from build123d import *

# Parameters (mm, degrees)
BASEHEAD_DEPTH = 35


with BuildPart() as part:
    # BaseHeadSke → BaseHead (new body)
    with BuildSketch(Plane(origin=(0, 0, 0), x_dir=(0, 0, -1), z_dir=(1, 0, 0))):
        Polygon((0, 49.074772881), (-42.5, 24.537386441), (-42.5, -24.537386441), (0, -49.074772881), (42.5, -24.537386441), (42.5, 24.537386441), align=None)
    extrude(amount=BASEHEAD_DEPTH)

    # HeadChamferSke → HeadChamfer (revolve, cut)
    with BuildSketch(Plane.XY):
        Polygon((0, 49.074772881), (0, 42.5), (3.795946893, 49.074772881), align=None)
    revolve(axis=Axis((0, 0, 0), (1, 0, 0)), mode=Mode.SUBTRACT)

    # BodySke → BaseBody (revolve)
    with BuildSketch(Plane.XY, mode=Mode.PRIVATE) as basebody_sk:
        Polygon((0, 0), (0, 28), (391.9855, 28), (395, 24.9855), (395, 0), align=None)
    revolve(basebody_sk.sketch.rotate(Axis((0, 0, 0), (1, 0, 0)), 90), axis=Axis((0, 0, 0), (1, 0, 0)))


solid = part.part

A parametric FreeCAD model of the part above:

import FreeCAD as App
import Part
import Sketcher
Q = App.Units.Quantity

doc = App.newDocument("Part")
body = doc.addObject("PartDesign::Body", "Body")

# Sketch on YZ plane
sketch1 = body.newObject("Sketcher::SketchObject", "Sketch")
sketch1.AttachmentSupport = (doc.getObject("YZ_Plane"), [""])
sketch1.MapMode = "FlatFace"
sketch1.addGeometry([
    Part.LineSegment(App.Vector(49, 0, 0), App.Vector(25, 42, 0)),  # 0
    Part.LineSegment(App.Vector(25, 42, 0), App.Vector(-25, 42, 0)),  # 1
    Part.LineSegment(App.Vector(-25, 42, 0), App.Vector(-49, 0, 0)),  # 2
    Part.LineSegment(App.Vector(-49, 0, 0), App.Vector(-25, -42, 0)),  # 3
    Part.LineSegment(App.Vector(-25, -42, 0), App.Vector(25, -42, 0)),  # 4
    Part.LineSegment(App.Vector(25, -42, 0), App.Vector(49, 0, 0)),  # 5
], False)
sketch1.addConstraint([
    Sketcher.Constraint("Coincident", 0, 2, 1, 1),
    Sketcher.Constraint("Coincident", 1, 2, 2, 1),
    Sketcher.Constraint("Coincident", 2, 2, 3, 1),
    Sketcher.Constraint("Coincident", 3, 2, 4, 1),
    Sketcher.Constraint("Coincident", 4, 2, 5, 1),
    Sketcher.Constraint("Coincident", 5, 2, 0, 1),
    Sketcher.Constraint("Horizontal", 1),
    Sketcher.Constraint("Horizontal", 4),
    Sketcher.Constraint("Symmetric", 0, 2, 3, 2, -1, 1),
    Sketcher.Constraint("Symmetric", 2, 2, 5, 2, -1, 1),
    Sketcher.Constraint("PointOnObject", 2, 2, -1),
    Sketcher.Constraint("Parallel", 2, 5),
    Sketcher.Constraint("Vertical", 1, 2, 3, 2),
    Sketcher.Constraint("Angle", 0, Q("120 deg")),
    Sketcher.Constraint("DistanceY", 3, 2, 1, 2, Q("85 mm")),
    Sketcher.Constraint("DistanceX", 1, 2, 1, 1, Q("49.074773 mm")),
])
pad1 = body.newObject("PartDesign::Pad", "Pad")
pad1.Profile = sketch1
pad1.Length = 35

# Sketch on XY plane
sketch2 = body.newObject("Sketcher::SketchObject", "Sketch001")
sketch2.AttachmentSupport = (doc.getObject("XY_Plane"), [""])
sketch2.MapMode = "FlatFace"
sketch2.addGeometry([
    Part.LineSegment(App.Vector(0, 49.1, 0), App.Vector(0, 42.5, 0)),
    Part.LineSegment(App.Vector(0, 42.5, 0), App.Vector(3.8, 49.1, 0)),
    Part.LineSegment(App.Vector(3.8, 49.1, 0), App.Vector(0, 49.1, 0)),
], False)
sketch2.addConstraint([
    Sketcher.Constraint("Coincident", 0, 2, 1, 1),
    Sketcher.Constraint("Coincident", 1, 2, 2, 1),
    Sketcher.Constraint("Coincident", 2, 2, 0, 1),
    Sketcher.Constraint("Vertical", 0),
    Sketcher.Constraint("Horizontal", 2),
    Sketcher.Constraint("PointOnObject", 0, 2, -2),
    Sketcher.Constraint("Angle", 1, Q("60 deg")),
    Sketcher.Constraint("DistanceY", -1, 1, 0, 2, Q("42.5 mm")),
    Sketcher.Constraint("DistanceX", 2, 2, 2, 1, Q("3.795947 mm")),
])
groove = body.newObject("PartDesign::Groove", "Groove")
groove.Profile = sketch2
groove.ReferenceAxis = (sketch2, ["H_Axis"])
groove.Angle = 360

# Sketch on XY plane
sketch3 = body.newObject("Sketcher::SketchObject", "Sketch002")
sketch3.AttachmentSupport = (doc.getObject("XY_Plane"), [""])
sketch3.MapMode = "FlatFace"
sketch3.addGeometry([
    Part.LineSegment(App.Vector(0, 28, 0), App.Vector(0, 0, 0)),  # 0
    Part.LineSegment(App.Vector(0, 0, 0), App.Vector(395, 0, 0)),  # 1
    Part.LineSegment(App.Vector(395, 0, 0), App.Vector(395, 25, 0)),  # 2
    Part.LineSegment(App.Vector(395, 25, 0), App.Vector(392, 28, 0)),  # 3
    Part.LineSegment(App.Vector(392, 28, 0), App.Vector(0, 28, 0)),  # 4
], False)
sketch3.addConstraint([
    Sketcher.Constraint("Coincident", 0, 2, 1, 1),
    Sketcher.Constraint("Coincident", 1, 2, 2, 1),
    Sketcher.Constraint("Coincident", 2, 2, 3, 1),
    Sketcher.Constraint("Coincident", 3, 2, 4, 1),
    Sketcher.Constraint("Coincident", 4, 2, 0, 1),
    Sketcher.Constraint("Vertical", 0),
    Sketcher.Constraint("Horizontal", 1),
    Sketcher.Constraint("Vertical", 2),
    Sketcher.Constraint("Horizontal", 4),
    Sketcher.Constraint("Coincident", 0, 2, -1, 1),
    Sketcher.Constraint("DistanceX", 1, 1, 1, 2, Q("395 mm")),
    Sketcher.Constraint("DistanceY", 0, 2, 0, 1, Q("28 mm")),
    Sketcher.Constraint("Angle", 3, Q("135 deg")),
    Sketcher.Constraint("DistanceX", 4, 2, 4, 1, Q("391.9855 mm")),
])
revolution = body.newObject("PartDesign::Revolution", "Revolution")
revolution.Profile = sketch3
revolution.ReferenceAxis = (sketch3, ["H_Axis"])
revolution.Angle = 360

doc.recompute()
